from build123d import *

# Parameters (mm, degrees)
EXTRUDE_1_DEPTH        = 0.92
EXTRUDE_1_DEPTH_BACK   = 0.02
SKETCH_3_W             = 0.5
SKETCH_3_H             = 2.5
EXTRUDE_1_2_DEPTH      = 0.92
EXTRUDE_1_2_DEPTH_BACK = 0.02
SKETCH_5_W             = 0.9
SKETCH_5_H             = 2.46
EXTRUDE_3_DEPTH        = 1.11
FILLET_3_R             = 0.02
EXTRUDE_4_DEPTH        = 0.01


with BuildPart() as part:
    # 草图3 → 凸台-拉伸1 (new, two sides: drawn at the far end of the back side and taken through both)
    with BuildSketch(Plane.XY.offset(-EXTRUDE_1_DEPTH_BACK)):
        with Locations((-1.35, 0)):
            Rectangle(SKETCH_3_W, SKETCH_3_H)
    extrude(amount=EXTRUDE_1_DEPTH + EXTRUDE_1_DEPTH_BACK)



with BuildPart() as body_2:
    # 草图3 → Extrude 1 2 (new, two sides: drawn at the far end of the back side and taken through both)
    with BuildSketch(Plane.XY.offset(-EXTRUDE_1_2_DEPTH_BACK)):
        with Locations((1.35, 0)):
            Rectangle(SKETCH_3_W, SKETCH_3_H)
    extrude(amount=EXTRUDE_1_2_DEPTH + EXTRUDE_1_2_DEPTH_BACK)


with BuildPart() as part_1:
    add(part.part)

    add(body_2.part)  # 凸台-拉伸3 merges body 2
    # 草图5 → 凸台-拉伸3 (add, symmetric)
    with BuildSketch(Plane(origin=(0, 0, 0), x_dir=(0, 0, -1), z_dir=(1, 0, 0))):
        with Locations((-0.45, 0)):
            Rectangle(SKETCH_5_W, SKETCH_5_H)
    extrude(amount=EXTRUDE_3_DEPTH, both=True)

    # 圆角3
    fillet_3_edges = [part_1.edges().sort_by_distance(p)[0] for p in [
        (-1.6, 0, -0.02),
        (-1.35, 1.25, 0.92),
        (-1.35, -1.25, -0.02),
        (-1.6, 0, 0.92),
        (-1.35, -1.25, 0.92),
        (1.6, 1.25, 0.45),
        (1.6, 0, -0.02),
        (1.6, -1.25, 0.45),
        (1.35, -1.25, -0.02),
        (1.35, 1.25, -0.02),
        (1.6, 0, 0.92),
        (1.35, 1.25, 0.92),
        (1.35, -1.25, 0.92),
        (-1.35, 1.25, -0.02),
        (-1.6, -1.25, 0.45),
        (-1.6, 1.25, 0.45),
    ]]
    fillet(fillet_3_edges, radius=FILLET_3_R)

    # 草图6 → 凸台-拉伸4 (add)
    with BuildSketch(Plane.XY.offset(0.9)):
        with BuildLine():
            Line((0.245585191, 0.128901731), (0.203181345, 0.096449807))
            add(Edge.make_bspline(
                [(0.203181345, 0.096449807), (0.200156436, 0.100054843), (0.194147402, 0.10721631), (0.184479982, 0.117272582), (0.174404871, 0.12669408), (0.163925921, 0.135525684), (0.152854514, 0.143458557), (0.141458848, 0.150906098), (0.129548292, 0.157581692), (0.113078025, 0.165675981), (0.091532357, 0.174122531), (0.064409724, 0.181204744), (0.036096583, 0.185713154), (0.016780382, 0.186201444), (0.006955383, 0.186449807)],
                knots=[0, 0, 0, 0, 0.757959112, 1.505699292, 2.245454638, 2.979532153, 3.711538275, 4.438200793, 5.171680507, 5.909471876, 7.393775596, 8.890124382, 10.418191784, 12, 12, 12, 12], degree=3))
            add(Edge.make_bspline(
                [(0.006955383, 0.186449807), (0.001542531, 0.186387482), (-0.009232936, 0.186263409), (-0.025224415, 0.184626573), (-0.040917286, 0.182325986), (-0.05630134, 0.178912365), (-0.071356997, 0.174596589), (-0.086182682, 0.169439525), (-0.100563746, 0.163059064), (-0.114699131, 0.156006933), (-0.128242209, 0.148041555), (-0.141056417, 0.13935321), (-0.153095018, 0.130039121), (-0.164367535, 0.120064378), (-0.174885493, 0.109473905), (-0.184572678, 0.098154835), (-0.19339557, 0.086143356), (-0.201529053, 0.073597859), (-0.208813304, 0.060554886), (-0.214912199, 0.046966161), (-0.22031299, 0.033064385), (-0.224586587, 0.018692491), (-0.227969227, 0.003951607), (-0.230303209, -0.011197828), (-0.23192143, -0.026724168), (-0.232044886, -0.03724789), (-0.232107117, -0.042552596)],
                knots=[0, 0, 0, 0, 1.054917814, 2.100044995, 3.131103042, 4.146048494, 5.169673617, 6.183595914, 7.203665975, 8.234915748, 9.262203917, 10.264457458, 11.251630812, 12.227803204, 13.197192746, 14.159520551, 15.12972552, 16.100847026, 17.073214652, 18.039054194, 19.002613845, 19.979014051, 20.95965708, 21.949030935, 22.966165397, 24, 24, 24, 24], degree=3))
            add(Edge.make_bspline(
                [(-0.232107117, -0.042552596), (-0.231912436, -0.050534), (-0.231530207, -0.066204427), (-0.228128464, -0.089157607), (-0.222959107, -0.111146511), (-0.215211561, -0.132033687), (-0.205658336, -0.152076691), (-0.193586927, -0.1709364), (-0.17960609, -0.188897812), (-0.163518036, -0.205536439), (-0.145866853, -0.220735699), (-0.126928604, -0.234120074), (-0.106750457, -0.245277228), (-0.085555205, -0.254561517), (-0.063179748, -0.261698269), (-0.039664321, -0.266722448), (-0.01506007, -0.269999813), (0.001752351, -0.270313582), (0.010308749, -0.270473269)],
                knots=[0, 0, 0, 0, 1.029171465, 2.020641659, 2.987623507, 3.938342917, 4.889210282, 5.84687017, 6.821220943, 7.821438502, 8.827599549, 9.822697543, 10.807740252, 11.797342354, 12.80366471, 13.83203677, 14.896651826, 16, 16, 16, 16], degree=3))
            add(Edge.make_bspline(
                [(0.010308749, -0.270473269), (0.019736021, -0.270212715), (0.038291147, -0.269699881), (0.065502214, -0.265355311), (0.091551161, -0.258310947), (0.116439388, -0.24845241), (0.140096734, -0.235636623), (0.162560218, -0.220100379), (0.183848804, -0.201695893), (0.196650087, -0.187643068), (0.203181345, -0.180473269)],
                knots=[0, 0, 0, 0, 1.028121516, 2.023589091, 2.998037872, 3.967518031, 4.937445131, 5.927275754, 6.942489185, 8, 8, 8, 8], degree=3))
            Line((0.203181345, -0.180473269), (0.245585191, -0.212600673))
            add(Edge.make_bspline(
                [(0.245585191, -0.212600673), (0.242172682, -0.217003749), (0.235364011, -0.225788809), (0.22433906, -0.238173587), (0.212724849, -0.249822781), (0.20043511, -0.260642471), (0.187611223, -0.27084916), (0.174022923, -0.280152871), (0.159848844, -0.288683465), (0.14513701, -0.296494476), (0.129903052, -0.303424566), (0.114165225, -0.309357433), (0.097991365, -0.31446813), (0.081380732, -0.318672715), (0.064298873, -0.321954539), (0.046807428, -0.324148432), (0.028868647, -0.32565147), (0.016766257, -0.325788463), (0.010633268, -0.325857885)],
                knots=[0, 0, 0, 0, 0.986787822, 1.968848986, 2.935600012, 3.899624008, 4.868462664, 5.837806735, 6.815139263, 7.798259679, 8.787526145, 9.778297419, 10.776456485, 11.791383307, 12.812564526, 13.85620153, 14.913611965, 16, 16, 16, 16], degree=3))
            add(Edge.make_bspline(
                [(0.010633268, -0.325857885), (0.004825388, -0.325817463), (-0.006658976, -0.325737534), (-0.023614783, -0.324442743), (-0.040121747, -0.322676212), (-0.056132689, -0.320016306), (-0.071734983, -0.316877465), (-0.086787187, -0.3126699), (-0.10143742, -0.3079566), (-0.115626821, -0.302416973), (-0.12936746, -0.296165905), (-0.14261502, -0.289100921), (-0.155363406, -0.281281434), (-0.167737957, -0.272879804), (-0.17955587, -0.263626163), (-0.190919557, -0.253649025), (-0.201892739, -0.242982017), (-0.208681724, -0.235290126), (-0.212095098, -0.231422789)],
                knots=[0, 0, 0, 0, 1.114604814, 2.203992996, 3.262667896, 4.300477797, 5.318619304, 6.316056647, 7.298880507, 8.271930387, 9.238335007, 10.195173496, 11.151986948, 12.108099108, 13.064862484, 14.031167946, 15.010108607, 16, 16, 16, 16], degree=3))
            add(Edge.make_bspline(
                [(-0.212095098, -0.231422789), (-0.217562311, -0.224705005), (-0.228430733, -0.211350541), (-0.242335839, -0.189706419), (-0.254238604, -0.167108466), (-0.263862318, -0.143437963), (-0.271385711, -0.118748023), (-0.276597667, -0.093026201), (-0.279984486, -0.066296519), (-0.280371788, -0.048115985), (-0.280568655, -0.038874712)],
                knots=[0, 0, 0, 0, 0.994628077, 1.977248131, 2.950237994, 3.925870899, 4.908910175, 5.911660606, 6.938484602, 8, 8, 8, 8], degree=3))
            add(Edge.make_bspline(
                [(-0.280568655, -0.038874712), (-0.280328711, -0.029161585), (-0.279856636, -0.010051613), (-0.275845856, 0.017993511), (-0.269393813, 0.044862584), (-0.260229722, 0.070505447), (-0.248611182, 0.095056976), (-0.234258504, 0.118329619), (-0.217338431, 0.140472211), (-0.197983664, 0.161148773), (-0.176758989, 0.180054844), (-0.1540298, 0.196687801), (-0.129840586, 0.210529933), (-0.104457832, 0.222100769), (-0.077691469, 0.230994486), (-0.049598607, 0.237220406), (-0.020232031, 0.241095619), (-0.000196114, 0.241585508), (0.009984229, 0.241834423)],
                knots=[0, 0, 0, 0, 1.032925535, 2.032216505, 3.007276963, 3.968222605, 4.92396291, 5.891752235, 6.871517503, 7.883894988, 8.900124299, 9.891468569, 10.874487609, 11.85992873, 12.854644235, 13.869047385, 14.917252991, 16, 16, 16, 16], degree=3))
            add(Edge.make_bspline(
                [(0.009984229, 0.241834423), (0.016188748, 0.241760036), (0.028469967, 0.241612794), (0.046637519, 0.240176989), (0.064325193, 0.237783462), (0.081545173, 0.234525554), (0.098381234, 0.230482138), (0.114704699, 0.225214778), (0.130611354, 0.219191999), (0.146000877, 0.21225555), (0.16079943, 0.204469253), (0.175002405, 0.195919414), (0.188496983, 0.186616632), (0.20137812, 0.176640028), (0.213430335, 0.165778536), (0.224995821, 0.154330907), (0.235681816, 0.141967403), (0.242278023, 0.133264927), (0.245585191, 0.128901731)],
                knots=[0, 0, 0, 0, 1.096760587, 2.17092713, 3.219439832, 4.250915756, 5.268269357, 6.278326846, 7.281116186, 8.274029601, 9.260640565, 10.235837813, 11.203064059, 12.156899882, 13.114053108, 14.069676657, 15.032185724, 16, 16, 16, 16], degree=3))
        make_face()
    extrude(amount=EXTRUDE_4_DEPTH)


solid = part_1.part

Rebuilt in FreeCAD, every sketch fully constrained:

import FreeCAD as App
import Part
import Sketcher
Q = App.Units.Quantity


def edges_at(feature, points):
    """Names of the edges that pass closest to the given points."""
    edges = feature.Shape.Edges
    near = lambda p: min(range(len(edges)), key=lambda i: edges[i].distToShape(Part.Vertex(*p))[0])
    return sorted({f"Edge{near(p) + 1}" for p in points})


def add_polygon(sketch, points):
    """Adds a closed chain of lines whose ends are joined by coincident constraints."""
    first, n = sketch.GeometryCount, len(points)
    for a, b in zip(points, points[1:] + points[:1]):
        sketch.addGeometry(Part.LineSegment(App.Vector(*a, 0), App.Vector(*b, 0)), False)
    for i in range(n):
        sketch.addConstraint(Sketcher.Constraint("Coincident", first + i, 2, first + (i + 1) % n, 1))

doc = App.newDocument("Part")
body = doc.addObject("PartDesign::Body", "Body")

sketch1 = body.newObject("Sketcher::SketchObject", "Sketch")
sketch1.AttachmentSupport = (doc.getObject("XY_Plane"), [""])
sketch1.MapMode = "FlatFace"
add_polygon(sketch1, [(-1.6, 1.2), (-1.6, -1.2), (-1.1, -1.2), (-1.1, 1.2)])
sketch1.addConstraint([
    Sketcher.Constraint("Vertical", 0),
    Sketcher.Constraint("Horizontal", 1),
    Sketcher.Constraint("Vertical", 2),
    Sketcher.Constraint("Horizontal", 3),
    Sketcher.Constraint("DistanceX", 1, 1, 1, 2, Q("0.5 mm")),
    Sketcher.Constraint("DistanceY", 0, 2, 0, 1, Q("2.5 mm")),
    Sketcher.Constraint("DistanceX", 0, 2, -1, 1, Q("1.6 mm")),
    Sketcher.Constraint("DistanceY", 0, 2, -1, 1, Q("1.25 mm")),
])
pad1 = body.newObject("PartDesign::Pad", "Pad")
pad1.Profile = sketch1
pad1.Type = "TwoLengths"
pad1.Length = 0.92
pad1.Length2 = 0.02
body2 = doc.addObject("PartDesign::Body", "Body001")

sketch2 = body2.newObject("Sketcher::SketchObject", "Sketch001")
sketch2.AttachmentSupport = (doc.getObject("XY_Plane001"), [""])
sketch2.MapMode = "FlatFace"
add_polygon(sketch2, [(1.1, 1.2), (1.1, -1.2), (1.6, -1.2), (1.6, 1.2)])
sketch2.addConstraint([
    Sketcher.Constraint("Vertical", 0),
    Sketcher.Constraint("Horizontal", 1),
    Sketcher.Constraint("Vertical", 2),
    Sketcher.Constraint("Horizontal", 3),
    Sketcher.Constraint("DistanceX", 1, 1, 1, 2, Q("0.5 mm")),
    Sketcher.Constraint("DistanceY", 0, 2, 0, 1, Q("2.5 mm")),
    Sketcher.Constraint("DistanceX", -1, 1, 0, 2, Q("1.1 mm")),
    Sketcher.Constraint("DistanceY", 0, 2, -1, 1, Q("1.25 mm")),
])
pad2 = body2.newObject("PartDesign::Pad", "Pad001")
pad2.Profile = sketch2
pad2.Type = "TwoLengths"
pad2.Length = 0.92
pad2.Length2 = 0.02
body.AllowCompound = True
doc.recompute()

boolean = body.newObject("PartDesign::Boolean", "Boolean")
boolean.Type = "Fuse"
boolean.addObjects([body2])

sketch3 = body.newObject("Sketcher::SketchObject", "Sketch002")
sketch3.AttachmentSupport = (doc.getObject("YZ_Plane"), [""])
sketch3.MapMode = "FlatFace"
add_polygon(sketch3, [(1.2, 0.9), (-1.2, 0.9), (-1.2, 0), (1.2, 0)])
sketch3.addConstraint([
    Sketcher.Constraint("Horizontal", 0),
    Sketcher.Constraint("Vertical", 1),
    Sketcher.Constraint("Horizontal", 2),
    Sketcher.Constraint("Vertical", 3),
    Sketcher.Constraint("Symmetric", 1, 2, 2, 2, -1, 1),
    Sketcher.Constraint("DistanceY", 1, 2, 1, 1, Q("0.9 mm")),
    Sketcher.Constraint("DistanceX", 0, 2, 0, 1, Q("2.46 mm")),
])
pad3 = body.newObject("PartDesign::Pad", "Pad002")
pad3.Profile = sketch3
pad3.Length = 2.22
pad3.Midplane = True
doc.recompute()

fillet = body.newObject("PartDesign::Fillet", "Fillet")
fillet.Base = (pad3, edges_at(pad3, [
    (-1.6, 0, -0.02),
    (-1.35, 1.25, 0.92),
    (-1.35, -1.25, -0.02),
    (-1.6, 0, 0.92),
    (-1.35, -1.25, 0.92),
    (1.6, 1.25, 0.45),
    (1.6, 0, -0.02),
    (1.6, -1.25, 0.45),
    (1.35, -1.25, -0.02),
    (1.35, 1.25, -0.02),
    (1.6, 0, 0.92),
    (1.35, 1.25, 0.92),
    (1.35, -1.25, 0.92),
    (-1.35, 1.25, -0.02),
    (-1.6, -1.25, 0.45),
    (-1.6, 1.25, 0.45),
]))
fillet.Radius = 0.02

sketch4 = body.newObject("Sketcher::SketchObject", "Sketch003")
sketch4.AttachmentSupport = (doc.getObject("XY_Plane"), [""])
sketch4.MapMode = "FlatFace"
sketch4.AttachmentOffset = App.Placement(App.Vector(0, 0, 0.9), App.Rotation())
sketch4.addGeometry([
    Part.LineSegment(App.Vector(0.203181, 0.09645, 0), App.Vector(0.245585, 0.128902, 0)),
    Part.BSplineCurve([App.Vector(0.009984, 0.241834, 0), App.Vector(0.016189, 0.24176, 0), App.Vector(0.02847, 0.241613, 0), App.Vector(0.046638, 0.240177, 0), App.Vector(0.064325, 0.237783, 0), App.Vector(0.081545, 0.234526, 0), App.Vector(0.098381, 0.230482, 0), App.Vector(0.114705, 0.225215, 0), App.Vector(0.130611, 0.219192, 0), App.Vector(0.146001, 0.212256, 0), App.Vector(0.160799, 0.204469, 0), App.Vector(0.175002, 0.195919, 0), App.Vector(0.188497, 0.186617, 0), App.Vector(0.201378, 0.17664, 0), App.Vector(0.21343, 0.165779, 0), App.Vector(0.224996, 0.154331, 0), App.Vector(0.235682, 0.141967, 0), App.Vector(0.242278, 0.133265, 0), App.Vector(0.245585, 0.128902, 0)], [4, 1, 1, 1, 1, 1, 1, 1, 1, 1, 1, 1, 1, 1, 1, 1, 4], [0, 1.096760587, 2.17092713, 3.219439832, 4.250915756, 5.268269357, 6.278326846, 7.281116186, 8.274029601, 9.260640565, 10.235837813, 11.203064059, 12.156899882, 13.114053108, 14.069676657, 15.032185724, 16], False, 3, [1, 1, 1, 1, 1, 1, 1, 1, 1, 1, 1, 1, 1, 1, 1, 1, 1, 1, 1], False),
    Part.BSplineCurve([App.Vector(-0.280569, -0.038875, 0), App.Vector(-0.280329, -0.029162, 0), App.Vector(-0.279857, -0.010052, 0), App.Vector(-0.275846, 0.017994, 0), App.Vector(-0.269394, 0.044863, 0), App.Vector(-0.26023, 0.070505, 0), App.Vector(-0.248611, 0.095057, 0), App.Vector(-0.234259, 0.11833, 0), App.Vector(-0.217338, 0.140472, 0), App.Vector(-0.197984, 0.161149, 0), App.Vector(-0.176759, 0.180055, 0), App.Vector(-0.15403, 0.196688, 0), App.Vector(-0.129841, 0.21053, 0), App.Vector(-0.104458, 0.222101, 0), App.Vector(-0.077691, 0.230994, 0), App.Vector(-0.049599, 0.23722, 0), App.Vector(-0.020232, 0.241096, 0), App.Vector(-0.000196, 0.241586, 0), App.Vector(0.009984, 0.241834, 0)], [4, 1, 1, 1, 1, 1, 1, 1, 1, 1, 1, 1, 1, 1, 1, 1, 4], [0, 1.032925535, 2.032216505, 3.007276963, 3.968222605, 4.92396291, 5.891752235, 6.871517503, 7.883894988, 8.900124299, 9.891468569, 10.874487609, 11.85992873, 12.854644235, 13.869047385, 14.917252991, 16], False, 3, [1, 1, 1, 1, 1, 1, 1, 1, 1, 1, 1, 1, 1, 1, 1, 1, 1, 1, 1], False),
    Part.BSplineCurve([App.Vector(-0.212095, -0.231423, 0), App.Vector(-0.217562, -0.224705, 0), App.Vector(-0.228431, -0.211351, 0), App.Vector(-0.242336, -0.189706, 0), App.Vector(-0.254239, -0.167108, 0), App.Vector(-0.263862, -0.143438, 0), App.Vector(-0.271386, -0.118748, 0), App.Vector(-0.276598, -0.093026, 0), App.Vector(-0.279984, -0.066297, 0), App.Vector(-0.280372, -0.048116, 0), App.Vector(-0.280569, -0.038875, 0)], [4, 1, 1, 1, 1, 1, 1, 1, 4], [0, 0.994628077, 1.977248131, 2.950237994, 3.925870899, 4.908910175, 5.911660606, 6.938484602, 8], False, 3, [1, 1, 1, 1, 1, 1, 1, 1, 1, 1, 1], False),
    Part.BSplineCurve([App.Vector(0.010633, -0.325858, 0), App.Vector(0.004825, -0.325817, 0), App.Vector(-0.006659, -0.325738, 0), App.Vector(-0.023615, -0.324443, 0), App.Vector(-0.040122, -0.322676, 0), App.Vector(-0.056133, -0.320016, 0), App.Vector(-0.071735, -0.316877, 0), App.Vector(-0.086787, -0.31267, 0), App.Vector(-0.101437, -0.307957, 0), App.Vector(-0.115627, -0.302417, 0), App.Vector(-0.129367, -0.296166, 0), App.Vector(-0.142615, -0.289101, 0), App.Vector(-0.155363, -0.281281, 0), App.Vector(-0.167738, -0.27288, 0), App.Vector(-0.179556, -0.263626, 0), App.Vector(-0.19092, -0.253649, 0), App.Vector(-0.201893, -0.242982, 0), App.Vector(-0.208682, -0.23529, 0), App.Vector(-0.212095, -0.231423, 0)], [4, 1, 1, 1, 1, 1, 1, 1, 1, 1, 1, 1, 1, 1, 1, 1, 4], [0, 1.114604814, 2.203992996, 3.262667896, 4.300477797, 5.318619304, 6.316056647, 7.298880507, 8.271930387, 9.238335007, 10.195173496, 11.151986948, 12.108099108, 13.064862484, 14.031167946, 15.010108607, 16], False, 3, [1, 1, 1, 1, 1, 1, 1, 1, 1, 1, 1, 1, 1, 1, 1, 1, 1, 1, 1], False),
    Part.BSplineCurve([App.Vector(0.245585, -0.212601, 0), App.Vector(0.242173, -0.217004, 0), App.Vector(0.235364, -0.225789, 0), App.Vector(0.224339, -0.238174, 0), App.Vector(0.212725, -0.249823, 0), App.Vector(0.200435, -0.260642, 0), App.Vector(0.187611, -0.270849, 0), App.Vector(0.174023, -0.280153, 0), App.Vector(0.159849, -0.288683, 0), App.Vector(0.145137, -0.296494, 0), App.Vector(0.129903, -0.303425, 0), App.Vector(0.114165, -0.309357, 0), App.Vector(0.097991, -0.314468, 0), App.Vector(0.081381, -0.318673, 0), App.Vector(0.064299, -0.321955, 0), App.Vector(0.046807, -0.324148, 0), App.Vector(0.028869, -0.325651, 0), App.Vector(0.016766, -0.325788, 0), App.Vector(0.010633, -0.325858, 0)], [4, 1, 1, 1, 1, 1, 1, 1, 1, 1, 1, 1, 1, 1, 1, 1, 4], [0, 0.986787822, 1.968848986, 2.935600012, 3.899624008, 4.868462664, 5.837806735, 6.815139263, 7.798259679, 8.787526145, 9.778297419, 10.776456485, 11.791383307, 12.812564526, 13.85620153, 14.913611965, 16], False, 3, [1, 1, 1, 1, 1, 1, 1, 1, 1, 1, 1, 1, 1, 1, 1, 1, 1, 1, 1], False),
    Part.LineSegment(App.Vector(0.245585, -0.212601, 0), App.Vector(0.203181, -0.180473, 0)),
    Part.BSplineCurve([App.Vector(0.010309, -0.270473, 0), App.Vector(0.019736, -0.270213, 0), App.Vector(0.038291, -0.2697, 0), App.Vector(0.065502, -0.265355, 0), App.Vector(0.091551, -0.258311, 0), App.Vector(0.116439, -0.248452, 0), App.Vector(0.140097, -0.235637, 0), App.Vector(0.16256, -0.2201, 0), App.Vector(0.183849, -0.201696, 0), App.Vector(0.19665, -0.187643, 0), App.Vector(0.203181, -0.180473, 0)], [4, 1, 1, 1, 1, 1, 1, 1, 4], [0, 1.028121516, 2.023589091, 2.998037872, 3.967518031, 4.937445131, 5.927275754, 6.942489185, 8], False, 3, [1, 1, 1, 1, 1, 1, 1, 1, 1, 1, 1], False),
    Part.BSplineCurve([App.Vector(-0.232107, -0.042553, 0), App.Vector(-0.231912, -0.050534, 0), App.Vector(-0.23153, -0.066204, 0), App.Vector(-0.228128, -0.089158, 0), App.Vector(-0.222959, -0.111147, 0), App.Vector(-0.215212, -0.132034, 0), App.Vector(-0.205658, -0.152077, 0), App.Vector(-0.193587, -0.170936, 0), App.Vector(-0.179606, -0.188898, 0), App.Vector(-0.163518, -0.205536, 0), App.Vector(-0.145867, -0.220736, 0), App.Vector(-0.126929, -0.23412, 0), App.Vector(-0.10675, -0.245277, 0), App.Vector(-0.085555, -0.254562, 0), App.Vector(-0.06318, -0.261698, 0), App.Vector(-0.039664, -0.266722, 0), App.Vector(-0.01506, -0.27, 0), App.Vector(0.001752, -0.270314, 0), App.Vector(0.010309, -0.270473, 0)], [4, 1, 1, 1, 1, 1, 1, 1, 1, 1, 1, 1, 1, 1, 1, 1, 4], [0, 1.029171465, 2.020641659, 2.987623507, 3.938342917, 4.889210282, 5.84687017, 6.821220943, 7.821438502, 8.827599549, 9.822697543, 10.807740252, 11.797342354, 12.80366471, 13.83203677, 14.896651826, 16], False, 3, [1, 1, 1, 1, 1, 1, 1, 1, 1, 1, 1, 1, 1, 1, 1, 1, 1, 1, 1], False),
    Part.BSplineCurve([App.Vector(0.006955, 0.18645, 0), App.Vector(0.001543, 0.186387, 0), App.Vector(-0.009233, 0.186263, 0), App.Vector(-0.025224, 0.184627, 0), App.Vector(-0.040917, 0.182326, 0), App.Vector(-0.056301, 0.178912, 0), App.Vector(-0.071357, 0.174597, 0), App.Vector(-0.086183, 0.16944, 0), App.Vector(-0.100564, 0.163059, 0), App.Vector(-0.114699, 0.156007, 0), App.Vector(-0.128242, 0.148042, 0), App.Vector(-0.141056, 0.139353, 0), App.Vector(-0.153095, 0.130039, 0), App.Vector(-0.164368, 0.120064, 0), App.Vector(-0.174885, 0.109474, 0), App.Vector(-0.184573, 0.098155, 0), App.Vector(-0.193396, 0.086143, 0), App.Vector(-0.201529, 0.073598, 0), App.Vector(-0.208813, 0.060555, 0), App.Vector(-0.214912, 0.046966, 0), App.Vector(-0.220313, 0.033064, 0), App.Vector(-0.224587, 0.018692, 0), App.Vector(-0.227969, 0.003952, 0), App.Vector(-0.230303, -0.011198, 0), App.Vector(-0.231921, -0.026724, 0), App.Vector(-0.232045, -0.037248, 0), App.Vector(-0.232107, -0.042553, 0)], [4, 1, 1, 1, 1, 1, 1, 1, 1, 1, 1, 1, 1, 1, 1, 1, 1, 1, 1, 1, 1, 1, 1, 1, 4], [0, 1.054917814, 2.100044995, 3.131103042, 4.146048494, 5.169673617, 6.183595914, 7.203665975, 8.234915748, 9.262203917, 10.264457458, 11.251630812, 12.227803204, 13.197192746, 14.159520551, 15.12972552, 16.100847026, 17.073214652, 18.039054194, 19.002613845, 19.979014051, 20.95965708, 21.949030935, 22.966165397, 24], False, 3, [1, 1, 1, 1, 1, 1, 1, 1, 1, 1, 1, 1, 1, 1, 1, 1, 1, 1, 1, 1, 1, 1, 1, 1, 1, 1, 1], False),
    Part.BSplineCurve([App.Vector(0.203181, 0.09645, 0), App.Vector(0.200156, 0.100055, 0), App.Vector(0.194147, 0.107216, 0), App.Vector(0.18448, 0.117273, 0), App.Vector(0.174405, 0.126694, 0), App.Vector(0.163926, 0.135526, 0), App.Vector(0.152855, 0.143459, 0), App.Vector(0.141459, 0.150906, 0), App.Vector(0.129548, 0.157582, 0), App.Vector(0.113078, 0.165676, 0), App.Vector(0.091532, 0.174123, 0), App.Vector(0.06441, 0.181205, 0), App.Vector(0.036097, 0.185713, 0), App.Vector(0.01678, 0.186201, 0), App.Vector(0.006955, 0.18645, 0)], [4, 1, 1, 1, 1, 1, 1, 1, 1, 1, 1, 1, 4], [0, 0.757959112, 1.505699292, 2.245454638, 2.979532153, 3.711538275, 4.438200793, 5.171680507, 5.909471876, 7.393775596, 8.890124382, 10.418191784, 12], False, 3, [1, 1, 1, 1, 1, 1, 1, 1, 1, 1, 1, 1, 1, 1, 1], False),
], False)
sketch4.addConstraint([
    Sketcher.Constraint("Block", 1),
    Sketcher.Constraint("Block", 2),
    Sketcher.Constraint("Block", 3),
    Sketcher.Constraint("Block", 4),
    Sketcher.Constraint("Block", 5),
    Sketcher.Constraint("Block", 7),
    Sketcher.Constraint("Block", 8),
    Sketcher.Constraint("Block", 9),
    Sketcher.Constraint("Block", 10),
    Sketcher.Constraint("Coincident", 0, 2, 1, 2),
    Sketcher.Constraint("Coincident", 5, 1, 6, 1),
    Sketcher.Constraint("Coincident", 6, 2, 7, 2),
    Sketcher.Constraint("Coincident", 10, 1, 0, 1),
])
pad4 = body.newObject("PartDesign::Pad", "Pad003")
pad4.Profile = sketch4
pad4.Length = 0.01

doc.recompute()
